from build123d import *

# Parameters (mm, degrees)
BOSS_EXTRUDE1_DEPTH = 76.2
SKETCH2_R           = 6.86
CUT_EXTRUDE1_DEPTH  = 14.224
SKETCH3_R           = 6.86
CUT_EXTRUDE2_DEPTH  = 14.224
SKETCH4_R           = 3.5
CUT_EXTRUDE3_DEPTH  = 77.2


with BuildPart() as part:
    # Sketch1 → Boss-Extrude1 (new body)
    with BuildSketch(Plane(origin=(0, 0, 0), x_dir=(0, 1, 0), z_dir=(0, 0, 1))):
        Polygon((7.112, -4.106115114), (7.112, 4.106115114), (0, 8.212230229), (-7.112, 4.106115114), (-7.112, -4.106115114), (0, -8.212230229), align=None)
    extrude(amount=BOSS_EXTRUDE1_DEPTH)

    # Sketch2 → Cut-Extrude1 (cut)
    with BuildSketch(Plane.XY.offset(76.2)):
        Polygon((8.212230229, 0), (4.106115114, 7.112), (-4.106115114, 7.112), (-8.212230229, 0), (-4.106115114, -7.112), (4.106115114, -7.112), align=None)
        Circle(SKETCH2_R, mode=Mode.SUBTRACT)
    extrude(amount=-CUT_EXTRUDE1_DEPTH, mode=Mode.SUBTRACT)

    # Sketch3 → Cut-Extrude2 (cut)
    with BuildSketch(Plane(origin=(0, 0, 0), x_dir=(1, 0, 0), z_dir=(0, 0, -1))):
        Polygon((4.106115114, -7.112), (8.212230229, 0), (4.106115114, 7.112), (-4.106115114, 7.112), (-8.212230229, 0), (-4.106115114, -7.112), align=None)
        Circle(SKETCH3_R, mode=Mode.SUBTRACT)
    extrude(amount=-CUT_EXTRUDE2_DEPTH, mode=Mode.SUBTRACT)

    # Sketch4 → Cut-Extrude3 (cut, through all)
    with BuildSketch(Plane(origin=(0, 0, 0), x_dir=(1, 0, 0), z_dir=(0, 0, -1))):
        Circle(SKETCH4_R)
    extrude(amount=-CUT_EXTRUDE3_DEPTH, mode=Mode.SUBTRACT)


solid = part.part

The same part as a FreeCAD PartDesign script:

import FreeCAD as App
import Part
import Sketcher
Q = App.Units.Quantity

doc = App.newDocument("Part")
body = doc.addObject("PartDesign::Body", "Body")

sketch1 = body.newObject("Sketcher::SketchObject", "Sketch")
sketch1.AttachmentSupport = (doc.getObject("XY_Plane"), [""])
sketch1.MapMode = "FlatFace"
sketch1.addGeometry([
    Part.LineSegment(App.Vector(4, 7, 0), App.Vector(-4, 7, 0)),
    Part.LineSegment(App.Vector(-4, 7, 0), App.Vector(-8, 0, 0)),
    Part.LineSegment(App.Vector(-8, 0, 0), App.Vector(-4, -7, 0)),
    Part.LineSegment(App.Vector(-4, -7, 0), App.Vector(4, -7, 0)),
    Part.LineSegment(App.Vector(4, -7, 0), App.Vector(8, 0, 0)),
    Part.LineSegment(App.Vector(8, 0, 0), App.Vector(4, 7, 0)),
], False)
sketch1.addConstraint([
    Sketcher.Constraint("Coincident", 0, 2, 1, 1),
    Sketcher.Constraint("Coincident", 1, 2, 2, 1),
    Sketcher.Constraint("Coincident", 2, 2, 3, 1),
    Sketcher.Constraint("Coincident", 3, 2, 4, 1),
    Sketcher.Constraint("Coincident", 4, 2, 5, 1),
    Sketcher.Constraint("Coincident", 5, 2, 0, 1),
    Sketcher.Constraint("Horizontal", 0),
    Sketcher.Constraint("Horizontal", 3),
    Sketcher.Constraint("Symmetric", 0, 2, 3, 2, -1, 1),
    Sketcher.Constraint("Symmetric", 1, 2, 4, 2, -1, 1),
    Sketcher.Constraint("PointOnObject", 1, 2, -1),
    Sketcher.Constraint("Parallel", 2, 5),
    Sketcher.Constraint("Vertical", 0, 2, 2, 2),
    Sketcher.Constraint("Angle", 1, Q("-120 deg")),
    Sketcher.Constraint("DistanceY", -1, 1, 0, 2, 7.112),
    Sketcher.Constraint("DistanceX", 0, 2, 0, 1, 8.21223),
])
pad1 = body.newObject("PartDesign::Pad", "Pad")
pad1.Profile = sketch1
pad1.Length = 76.2

sketch2 = body.newObject("Sketcher::SketchObject", "Sketch001")
sketch2.AttachmentSupport = (doc.getObject("XY_Plane"), [""])
sketch2.MapMode = "FlatFace"
sketch2.AttachmentOffset = App.Placement(App.Vector(0, 0, 76.2), App.Rotation())
sketch2.addGeometry([
    Part.LineSegment(App.Vector(8, 0, 0), App.Vector(4, 7, 0)),
    Part.LineSegment(App.Vector(4, 7, 0), App.Vector(-4, 7, 0)),
    Part.LineSegment(App.Vector(-4, 7, 0), App.Vector(-8, 0, 0)),
    Part.LineSegment(App.Vector(-8, 0, 0), App.Vector(-4, -7, 0)),
    Part.LineSegment(App.Vector(-4, -7, 0), App.Vector(4, -7, 0)),
    Part.LineSegment(App.Vector(4, -7, 0), App.Vector(8, 0, 0)),
    Part.Circle(App.Vector(0, 0, 0), App.Vector(0, 0, 1), 7),
], False)
sketch2.addConstraint([
    Sketcher.Constraint("Coincident", 0, 2, 1, 1),
    Sketcher.Constraint("Coincident", 1, 2, 2, 1),
    Sketcher.Constraint("Coincident", 2, 2, 3, 1),
    Sketcher.Constraint("Coincident", 3, 2, 4, 1),
    Sketcher.Constraint("Coincident", 4, 2, 5, 1),
    Sketcher.Constraint("Coincident", 5, 2, 0, 1),
    Sketcher.Constraint("Horizontal", 1),
    Sketcher.Constraint("Horizontal", 4),
    Sketcher.Constraint("Coincident", 6, 3, -1, 1),
    Sketcher.Constraint("Symmetric", 0, 2, 3, 2, -1, 1),
    Sketcher.Constraint("Symmetric", 2, 2, 5, 2, -1, 1),
    Sketcher.Constraint("PointOnObject", 2, 2, -1),
    Sketcher.Constraint("Parallel", 2, 5),
    Sketcher.Constraint("Vertical", 1, 2, 3, 2),
    Sketcher.Constraint("Diameter", 6, 13.72),
    Sketcher.Constraint("Angle", 0, Q("120 deg")),
    Sketcher.Constraint("DistanceY", -1, 1, 0, 2, 7.112),
    Sketcher.Constraint("DistanceX", 1, 2, 1, 1, 8.21223),
])
pocket1 = body.newObject("PartDesign::Pocket", "Pocket")
pocket1.Profile = sketch2
pocket1.Length = 14.224

sketch3 = body.newObject("Sketcher::SketchObject", "Sketch002")
sketch3.AttachmentSupport = (doc.getObject("XY_Plane"), [""])
sketch3.MapMode = "FlatFace"
sketch3.addGeometry([
    Part.LineSegment(App.Vector(4, 7, 0), App.Vector(8, 0, 0)),
    Part.LineSegment(App.Vector(8, 0, 0), App.Vector(4, -7, 0)),
    Part.LineSegment(App.Vector(4, -7, 0), App.Vector(-4, -7, 0)),
    Part.LineSegment(App.Vector(-4, -7, 0), App.Vector(-8, 0, 0)),
    Part.LineSegment(App.Vector(-8, 0, 0), App.Vector(-4, 7, 0)),
    Part.LineSegment(App.Vector(-4, 7, 0), App.Vector(4, 7, 0)),
    Part.Circle(App.Vector(0, 0, 0), App.Vector(0, 0, 1), 7),
], False)
sketch3.addConstraint([
    Sketcher.Constraint("Coincident", 0, 2, 1, 1),
    Sketcher.Constraint("Coincident", 1, 2, 2, 1),
    Sketcher.Constraint("Coincident", 2, 2, 3, 1),
    Sketcher.Constraint("Coincident", 3, 2, 4, 1),
    Sketcher.Constraint("Coincident", 4, 2, 5, 1),
    Sketcher.Constraint("Coincident", 5, 2, 0, 1),
    Sketcher.Constraint("Horizontal", 2),
    Sketcher.Constraint("Horizontal", 5),
    Sketcher.Constraint("Coincident", 6, 3, -1, 1),
    Sketcher.Constraint("Symmetric", 0, 2, 3, 2, -1, 1),
    Sketcher.Constraint("Symmetric", 1, 2, 4, 2, -1, 1),
    Sketcher.Constraint("PointOnObject", 0, 2, -1),
    Sketcher.Constraint("Parallel", 0, 3),
    Sketcher.Constraint("Vertical", 2, 2, 4, 2),
    Sketcher.Constraint("Diameter", 6, 13.72),
    Sketcher.Constraint("Angle", 0, Q("-60 deg")),
    Sketcher.Constraint("DistanceY", 1, 2, -1, 1, 7.112),
    Sketcher.Constraint("DistanceX", 2, 2, 2, 1, 8.21223),
])
pocket2 = body.newObject("PartDesign::Pocket", "Pocket001")
pocket2.Profile = sketch3
pocket2.Length = 14.224
pocket2.Reversed = True

sketch4 = body.newObject("Sketcher::SketchObject", "Sketch003")
sketch4.AttachmentSupport = (doc.getObject("XY_Plane"), [""])
sketch4.MapMode = "FlatFace"
sketch4.addGeometry(Part.Circle(App.Vector(0, 0, 0), App.Vector(0, 0, 1), 3.5), False)
sketch4.addConstraint([
    Sketcher.Constraint("Coincident", 0, 3, -1, 1),
    Sketcher.Constraint("Diameter", 0, 7.0),
])
pocket3 = body.newObject("PartDesign::Pocket", "Pocket002")
pocket3.Profile = sketch4
pocket3.Type = "ThroughAll"
pocket3.Reversed = True

doc.recompute()
